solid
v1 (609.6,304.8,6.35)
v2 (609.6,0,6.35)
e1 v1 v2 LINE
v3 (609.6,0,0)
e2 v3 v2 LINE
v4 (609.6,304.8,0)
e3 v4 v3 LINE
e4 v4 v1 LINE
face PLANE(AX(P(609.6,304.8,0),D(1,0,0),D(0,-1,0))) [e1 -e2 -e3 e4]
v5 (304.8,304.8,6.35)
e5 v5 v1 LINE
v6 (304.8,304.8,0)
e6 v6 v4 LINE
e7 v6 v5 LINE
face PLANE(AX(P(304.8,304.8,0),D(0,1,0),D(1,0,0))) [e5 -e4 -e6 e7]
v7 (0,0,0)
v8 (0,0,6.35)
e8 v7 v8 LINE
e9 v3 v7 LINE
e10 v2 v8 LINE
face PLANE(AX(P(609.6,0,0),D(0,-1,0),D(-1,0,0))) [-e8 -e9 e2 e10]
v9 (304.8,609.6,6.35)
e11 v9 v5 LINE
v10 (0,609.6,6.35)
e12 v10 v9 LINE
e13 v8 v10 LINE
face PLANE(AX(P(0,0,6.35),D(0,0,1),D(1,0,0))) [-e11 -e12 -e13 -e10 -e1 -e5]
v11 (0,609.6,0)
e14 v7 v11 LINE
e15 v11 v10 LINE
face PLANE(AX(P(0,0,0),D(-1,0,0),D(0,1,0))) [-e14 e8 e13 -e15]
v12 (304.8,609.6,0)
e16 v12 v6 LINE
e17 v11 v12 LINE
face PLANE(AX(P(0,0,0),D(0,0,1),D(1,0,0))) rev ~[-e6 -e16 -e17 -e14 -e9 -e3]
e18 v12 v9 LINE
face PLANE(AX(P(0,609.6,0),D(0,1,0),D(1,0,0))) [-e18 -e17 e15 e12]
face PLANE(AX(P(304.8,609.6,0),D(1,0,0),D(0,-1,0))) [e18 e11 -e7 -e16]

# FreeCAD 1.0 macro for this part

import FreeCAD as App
import Part
import Sketcher
from FreeCAD import Vector
Q = App.Units.Quantity


def add_polygon(sketch, points):
    """Adds a closed chain of lines whose ends are joined by coincident constraints."""
    first, n = sketch.GeometryCount, len(points)
    for a, b in zip(points, points[1:] + points[:1]):
        sketch.addGeometry(Part.LineSegment(App.Vector(*a, 0), App.Vector(*b, 0)), False)
    for i in range(n):
        sketch.addConstraint(Sketcher.Constraint("Coincident", first + i, 2, first + (i + 1) % n, 1))

doc = App.newDocument("Part")
body = doc.addObject("PartDesign::Body", "Body")

sketch1 = doc.addObject("Sketcher::SketchObject", "Sketch")
body.addObject(sketch1)
sketch1.AttachmentSupport = (doc.XY_Plane, [""])
sketch1.MapMode = "FlatFace"
add_polygon(sketch1, [(0, 610), (0, 0), (610, 0), (610, 305), (305, 305), (305, 610)])
sketch1.addConstraint([
    Sketcher.Constraint("Vertical", 0),
    Sketcher.Constraint("Horizontal", 1),
    Sketcher.Constraint("Vertical", 2),
    Sketcher.Constraint("Horizontal", 3),
    Sketcher.Constraint("Vertical", 4),
    Sketcher.Constraint("Horizontal", 5),
    Sketcher.Constraint("Coincident", 0, 2, -1, 1),
    Sketcher.Constraint("Equal", 3, 5),
    Sketcher.Constraint("Equal", 1, 0),
    Sketcher.Constraint("Equal", 5, 2),
    Sketcher.Constraint("DistanceX", 1, 1, 1, 2, Q("24 in")),
])
pad1 = doc.addObject("PartDesign::Pad", "Pad")
body.addObject(pad1)
pad1.Profile = sketch1
pad1.Length = Q("0.25 in")

doc.recompute()
